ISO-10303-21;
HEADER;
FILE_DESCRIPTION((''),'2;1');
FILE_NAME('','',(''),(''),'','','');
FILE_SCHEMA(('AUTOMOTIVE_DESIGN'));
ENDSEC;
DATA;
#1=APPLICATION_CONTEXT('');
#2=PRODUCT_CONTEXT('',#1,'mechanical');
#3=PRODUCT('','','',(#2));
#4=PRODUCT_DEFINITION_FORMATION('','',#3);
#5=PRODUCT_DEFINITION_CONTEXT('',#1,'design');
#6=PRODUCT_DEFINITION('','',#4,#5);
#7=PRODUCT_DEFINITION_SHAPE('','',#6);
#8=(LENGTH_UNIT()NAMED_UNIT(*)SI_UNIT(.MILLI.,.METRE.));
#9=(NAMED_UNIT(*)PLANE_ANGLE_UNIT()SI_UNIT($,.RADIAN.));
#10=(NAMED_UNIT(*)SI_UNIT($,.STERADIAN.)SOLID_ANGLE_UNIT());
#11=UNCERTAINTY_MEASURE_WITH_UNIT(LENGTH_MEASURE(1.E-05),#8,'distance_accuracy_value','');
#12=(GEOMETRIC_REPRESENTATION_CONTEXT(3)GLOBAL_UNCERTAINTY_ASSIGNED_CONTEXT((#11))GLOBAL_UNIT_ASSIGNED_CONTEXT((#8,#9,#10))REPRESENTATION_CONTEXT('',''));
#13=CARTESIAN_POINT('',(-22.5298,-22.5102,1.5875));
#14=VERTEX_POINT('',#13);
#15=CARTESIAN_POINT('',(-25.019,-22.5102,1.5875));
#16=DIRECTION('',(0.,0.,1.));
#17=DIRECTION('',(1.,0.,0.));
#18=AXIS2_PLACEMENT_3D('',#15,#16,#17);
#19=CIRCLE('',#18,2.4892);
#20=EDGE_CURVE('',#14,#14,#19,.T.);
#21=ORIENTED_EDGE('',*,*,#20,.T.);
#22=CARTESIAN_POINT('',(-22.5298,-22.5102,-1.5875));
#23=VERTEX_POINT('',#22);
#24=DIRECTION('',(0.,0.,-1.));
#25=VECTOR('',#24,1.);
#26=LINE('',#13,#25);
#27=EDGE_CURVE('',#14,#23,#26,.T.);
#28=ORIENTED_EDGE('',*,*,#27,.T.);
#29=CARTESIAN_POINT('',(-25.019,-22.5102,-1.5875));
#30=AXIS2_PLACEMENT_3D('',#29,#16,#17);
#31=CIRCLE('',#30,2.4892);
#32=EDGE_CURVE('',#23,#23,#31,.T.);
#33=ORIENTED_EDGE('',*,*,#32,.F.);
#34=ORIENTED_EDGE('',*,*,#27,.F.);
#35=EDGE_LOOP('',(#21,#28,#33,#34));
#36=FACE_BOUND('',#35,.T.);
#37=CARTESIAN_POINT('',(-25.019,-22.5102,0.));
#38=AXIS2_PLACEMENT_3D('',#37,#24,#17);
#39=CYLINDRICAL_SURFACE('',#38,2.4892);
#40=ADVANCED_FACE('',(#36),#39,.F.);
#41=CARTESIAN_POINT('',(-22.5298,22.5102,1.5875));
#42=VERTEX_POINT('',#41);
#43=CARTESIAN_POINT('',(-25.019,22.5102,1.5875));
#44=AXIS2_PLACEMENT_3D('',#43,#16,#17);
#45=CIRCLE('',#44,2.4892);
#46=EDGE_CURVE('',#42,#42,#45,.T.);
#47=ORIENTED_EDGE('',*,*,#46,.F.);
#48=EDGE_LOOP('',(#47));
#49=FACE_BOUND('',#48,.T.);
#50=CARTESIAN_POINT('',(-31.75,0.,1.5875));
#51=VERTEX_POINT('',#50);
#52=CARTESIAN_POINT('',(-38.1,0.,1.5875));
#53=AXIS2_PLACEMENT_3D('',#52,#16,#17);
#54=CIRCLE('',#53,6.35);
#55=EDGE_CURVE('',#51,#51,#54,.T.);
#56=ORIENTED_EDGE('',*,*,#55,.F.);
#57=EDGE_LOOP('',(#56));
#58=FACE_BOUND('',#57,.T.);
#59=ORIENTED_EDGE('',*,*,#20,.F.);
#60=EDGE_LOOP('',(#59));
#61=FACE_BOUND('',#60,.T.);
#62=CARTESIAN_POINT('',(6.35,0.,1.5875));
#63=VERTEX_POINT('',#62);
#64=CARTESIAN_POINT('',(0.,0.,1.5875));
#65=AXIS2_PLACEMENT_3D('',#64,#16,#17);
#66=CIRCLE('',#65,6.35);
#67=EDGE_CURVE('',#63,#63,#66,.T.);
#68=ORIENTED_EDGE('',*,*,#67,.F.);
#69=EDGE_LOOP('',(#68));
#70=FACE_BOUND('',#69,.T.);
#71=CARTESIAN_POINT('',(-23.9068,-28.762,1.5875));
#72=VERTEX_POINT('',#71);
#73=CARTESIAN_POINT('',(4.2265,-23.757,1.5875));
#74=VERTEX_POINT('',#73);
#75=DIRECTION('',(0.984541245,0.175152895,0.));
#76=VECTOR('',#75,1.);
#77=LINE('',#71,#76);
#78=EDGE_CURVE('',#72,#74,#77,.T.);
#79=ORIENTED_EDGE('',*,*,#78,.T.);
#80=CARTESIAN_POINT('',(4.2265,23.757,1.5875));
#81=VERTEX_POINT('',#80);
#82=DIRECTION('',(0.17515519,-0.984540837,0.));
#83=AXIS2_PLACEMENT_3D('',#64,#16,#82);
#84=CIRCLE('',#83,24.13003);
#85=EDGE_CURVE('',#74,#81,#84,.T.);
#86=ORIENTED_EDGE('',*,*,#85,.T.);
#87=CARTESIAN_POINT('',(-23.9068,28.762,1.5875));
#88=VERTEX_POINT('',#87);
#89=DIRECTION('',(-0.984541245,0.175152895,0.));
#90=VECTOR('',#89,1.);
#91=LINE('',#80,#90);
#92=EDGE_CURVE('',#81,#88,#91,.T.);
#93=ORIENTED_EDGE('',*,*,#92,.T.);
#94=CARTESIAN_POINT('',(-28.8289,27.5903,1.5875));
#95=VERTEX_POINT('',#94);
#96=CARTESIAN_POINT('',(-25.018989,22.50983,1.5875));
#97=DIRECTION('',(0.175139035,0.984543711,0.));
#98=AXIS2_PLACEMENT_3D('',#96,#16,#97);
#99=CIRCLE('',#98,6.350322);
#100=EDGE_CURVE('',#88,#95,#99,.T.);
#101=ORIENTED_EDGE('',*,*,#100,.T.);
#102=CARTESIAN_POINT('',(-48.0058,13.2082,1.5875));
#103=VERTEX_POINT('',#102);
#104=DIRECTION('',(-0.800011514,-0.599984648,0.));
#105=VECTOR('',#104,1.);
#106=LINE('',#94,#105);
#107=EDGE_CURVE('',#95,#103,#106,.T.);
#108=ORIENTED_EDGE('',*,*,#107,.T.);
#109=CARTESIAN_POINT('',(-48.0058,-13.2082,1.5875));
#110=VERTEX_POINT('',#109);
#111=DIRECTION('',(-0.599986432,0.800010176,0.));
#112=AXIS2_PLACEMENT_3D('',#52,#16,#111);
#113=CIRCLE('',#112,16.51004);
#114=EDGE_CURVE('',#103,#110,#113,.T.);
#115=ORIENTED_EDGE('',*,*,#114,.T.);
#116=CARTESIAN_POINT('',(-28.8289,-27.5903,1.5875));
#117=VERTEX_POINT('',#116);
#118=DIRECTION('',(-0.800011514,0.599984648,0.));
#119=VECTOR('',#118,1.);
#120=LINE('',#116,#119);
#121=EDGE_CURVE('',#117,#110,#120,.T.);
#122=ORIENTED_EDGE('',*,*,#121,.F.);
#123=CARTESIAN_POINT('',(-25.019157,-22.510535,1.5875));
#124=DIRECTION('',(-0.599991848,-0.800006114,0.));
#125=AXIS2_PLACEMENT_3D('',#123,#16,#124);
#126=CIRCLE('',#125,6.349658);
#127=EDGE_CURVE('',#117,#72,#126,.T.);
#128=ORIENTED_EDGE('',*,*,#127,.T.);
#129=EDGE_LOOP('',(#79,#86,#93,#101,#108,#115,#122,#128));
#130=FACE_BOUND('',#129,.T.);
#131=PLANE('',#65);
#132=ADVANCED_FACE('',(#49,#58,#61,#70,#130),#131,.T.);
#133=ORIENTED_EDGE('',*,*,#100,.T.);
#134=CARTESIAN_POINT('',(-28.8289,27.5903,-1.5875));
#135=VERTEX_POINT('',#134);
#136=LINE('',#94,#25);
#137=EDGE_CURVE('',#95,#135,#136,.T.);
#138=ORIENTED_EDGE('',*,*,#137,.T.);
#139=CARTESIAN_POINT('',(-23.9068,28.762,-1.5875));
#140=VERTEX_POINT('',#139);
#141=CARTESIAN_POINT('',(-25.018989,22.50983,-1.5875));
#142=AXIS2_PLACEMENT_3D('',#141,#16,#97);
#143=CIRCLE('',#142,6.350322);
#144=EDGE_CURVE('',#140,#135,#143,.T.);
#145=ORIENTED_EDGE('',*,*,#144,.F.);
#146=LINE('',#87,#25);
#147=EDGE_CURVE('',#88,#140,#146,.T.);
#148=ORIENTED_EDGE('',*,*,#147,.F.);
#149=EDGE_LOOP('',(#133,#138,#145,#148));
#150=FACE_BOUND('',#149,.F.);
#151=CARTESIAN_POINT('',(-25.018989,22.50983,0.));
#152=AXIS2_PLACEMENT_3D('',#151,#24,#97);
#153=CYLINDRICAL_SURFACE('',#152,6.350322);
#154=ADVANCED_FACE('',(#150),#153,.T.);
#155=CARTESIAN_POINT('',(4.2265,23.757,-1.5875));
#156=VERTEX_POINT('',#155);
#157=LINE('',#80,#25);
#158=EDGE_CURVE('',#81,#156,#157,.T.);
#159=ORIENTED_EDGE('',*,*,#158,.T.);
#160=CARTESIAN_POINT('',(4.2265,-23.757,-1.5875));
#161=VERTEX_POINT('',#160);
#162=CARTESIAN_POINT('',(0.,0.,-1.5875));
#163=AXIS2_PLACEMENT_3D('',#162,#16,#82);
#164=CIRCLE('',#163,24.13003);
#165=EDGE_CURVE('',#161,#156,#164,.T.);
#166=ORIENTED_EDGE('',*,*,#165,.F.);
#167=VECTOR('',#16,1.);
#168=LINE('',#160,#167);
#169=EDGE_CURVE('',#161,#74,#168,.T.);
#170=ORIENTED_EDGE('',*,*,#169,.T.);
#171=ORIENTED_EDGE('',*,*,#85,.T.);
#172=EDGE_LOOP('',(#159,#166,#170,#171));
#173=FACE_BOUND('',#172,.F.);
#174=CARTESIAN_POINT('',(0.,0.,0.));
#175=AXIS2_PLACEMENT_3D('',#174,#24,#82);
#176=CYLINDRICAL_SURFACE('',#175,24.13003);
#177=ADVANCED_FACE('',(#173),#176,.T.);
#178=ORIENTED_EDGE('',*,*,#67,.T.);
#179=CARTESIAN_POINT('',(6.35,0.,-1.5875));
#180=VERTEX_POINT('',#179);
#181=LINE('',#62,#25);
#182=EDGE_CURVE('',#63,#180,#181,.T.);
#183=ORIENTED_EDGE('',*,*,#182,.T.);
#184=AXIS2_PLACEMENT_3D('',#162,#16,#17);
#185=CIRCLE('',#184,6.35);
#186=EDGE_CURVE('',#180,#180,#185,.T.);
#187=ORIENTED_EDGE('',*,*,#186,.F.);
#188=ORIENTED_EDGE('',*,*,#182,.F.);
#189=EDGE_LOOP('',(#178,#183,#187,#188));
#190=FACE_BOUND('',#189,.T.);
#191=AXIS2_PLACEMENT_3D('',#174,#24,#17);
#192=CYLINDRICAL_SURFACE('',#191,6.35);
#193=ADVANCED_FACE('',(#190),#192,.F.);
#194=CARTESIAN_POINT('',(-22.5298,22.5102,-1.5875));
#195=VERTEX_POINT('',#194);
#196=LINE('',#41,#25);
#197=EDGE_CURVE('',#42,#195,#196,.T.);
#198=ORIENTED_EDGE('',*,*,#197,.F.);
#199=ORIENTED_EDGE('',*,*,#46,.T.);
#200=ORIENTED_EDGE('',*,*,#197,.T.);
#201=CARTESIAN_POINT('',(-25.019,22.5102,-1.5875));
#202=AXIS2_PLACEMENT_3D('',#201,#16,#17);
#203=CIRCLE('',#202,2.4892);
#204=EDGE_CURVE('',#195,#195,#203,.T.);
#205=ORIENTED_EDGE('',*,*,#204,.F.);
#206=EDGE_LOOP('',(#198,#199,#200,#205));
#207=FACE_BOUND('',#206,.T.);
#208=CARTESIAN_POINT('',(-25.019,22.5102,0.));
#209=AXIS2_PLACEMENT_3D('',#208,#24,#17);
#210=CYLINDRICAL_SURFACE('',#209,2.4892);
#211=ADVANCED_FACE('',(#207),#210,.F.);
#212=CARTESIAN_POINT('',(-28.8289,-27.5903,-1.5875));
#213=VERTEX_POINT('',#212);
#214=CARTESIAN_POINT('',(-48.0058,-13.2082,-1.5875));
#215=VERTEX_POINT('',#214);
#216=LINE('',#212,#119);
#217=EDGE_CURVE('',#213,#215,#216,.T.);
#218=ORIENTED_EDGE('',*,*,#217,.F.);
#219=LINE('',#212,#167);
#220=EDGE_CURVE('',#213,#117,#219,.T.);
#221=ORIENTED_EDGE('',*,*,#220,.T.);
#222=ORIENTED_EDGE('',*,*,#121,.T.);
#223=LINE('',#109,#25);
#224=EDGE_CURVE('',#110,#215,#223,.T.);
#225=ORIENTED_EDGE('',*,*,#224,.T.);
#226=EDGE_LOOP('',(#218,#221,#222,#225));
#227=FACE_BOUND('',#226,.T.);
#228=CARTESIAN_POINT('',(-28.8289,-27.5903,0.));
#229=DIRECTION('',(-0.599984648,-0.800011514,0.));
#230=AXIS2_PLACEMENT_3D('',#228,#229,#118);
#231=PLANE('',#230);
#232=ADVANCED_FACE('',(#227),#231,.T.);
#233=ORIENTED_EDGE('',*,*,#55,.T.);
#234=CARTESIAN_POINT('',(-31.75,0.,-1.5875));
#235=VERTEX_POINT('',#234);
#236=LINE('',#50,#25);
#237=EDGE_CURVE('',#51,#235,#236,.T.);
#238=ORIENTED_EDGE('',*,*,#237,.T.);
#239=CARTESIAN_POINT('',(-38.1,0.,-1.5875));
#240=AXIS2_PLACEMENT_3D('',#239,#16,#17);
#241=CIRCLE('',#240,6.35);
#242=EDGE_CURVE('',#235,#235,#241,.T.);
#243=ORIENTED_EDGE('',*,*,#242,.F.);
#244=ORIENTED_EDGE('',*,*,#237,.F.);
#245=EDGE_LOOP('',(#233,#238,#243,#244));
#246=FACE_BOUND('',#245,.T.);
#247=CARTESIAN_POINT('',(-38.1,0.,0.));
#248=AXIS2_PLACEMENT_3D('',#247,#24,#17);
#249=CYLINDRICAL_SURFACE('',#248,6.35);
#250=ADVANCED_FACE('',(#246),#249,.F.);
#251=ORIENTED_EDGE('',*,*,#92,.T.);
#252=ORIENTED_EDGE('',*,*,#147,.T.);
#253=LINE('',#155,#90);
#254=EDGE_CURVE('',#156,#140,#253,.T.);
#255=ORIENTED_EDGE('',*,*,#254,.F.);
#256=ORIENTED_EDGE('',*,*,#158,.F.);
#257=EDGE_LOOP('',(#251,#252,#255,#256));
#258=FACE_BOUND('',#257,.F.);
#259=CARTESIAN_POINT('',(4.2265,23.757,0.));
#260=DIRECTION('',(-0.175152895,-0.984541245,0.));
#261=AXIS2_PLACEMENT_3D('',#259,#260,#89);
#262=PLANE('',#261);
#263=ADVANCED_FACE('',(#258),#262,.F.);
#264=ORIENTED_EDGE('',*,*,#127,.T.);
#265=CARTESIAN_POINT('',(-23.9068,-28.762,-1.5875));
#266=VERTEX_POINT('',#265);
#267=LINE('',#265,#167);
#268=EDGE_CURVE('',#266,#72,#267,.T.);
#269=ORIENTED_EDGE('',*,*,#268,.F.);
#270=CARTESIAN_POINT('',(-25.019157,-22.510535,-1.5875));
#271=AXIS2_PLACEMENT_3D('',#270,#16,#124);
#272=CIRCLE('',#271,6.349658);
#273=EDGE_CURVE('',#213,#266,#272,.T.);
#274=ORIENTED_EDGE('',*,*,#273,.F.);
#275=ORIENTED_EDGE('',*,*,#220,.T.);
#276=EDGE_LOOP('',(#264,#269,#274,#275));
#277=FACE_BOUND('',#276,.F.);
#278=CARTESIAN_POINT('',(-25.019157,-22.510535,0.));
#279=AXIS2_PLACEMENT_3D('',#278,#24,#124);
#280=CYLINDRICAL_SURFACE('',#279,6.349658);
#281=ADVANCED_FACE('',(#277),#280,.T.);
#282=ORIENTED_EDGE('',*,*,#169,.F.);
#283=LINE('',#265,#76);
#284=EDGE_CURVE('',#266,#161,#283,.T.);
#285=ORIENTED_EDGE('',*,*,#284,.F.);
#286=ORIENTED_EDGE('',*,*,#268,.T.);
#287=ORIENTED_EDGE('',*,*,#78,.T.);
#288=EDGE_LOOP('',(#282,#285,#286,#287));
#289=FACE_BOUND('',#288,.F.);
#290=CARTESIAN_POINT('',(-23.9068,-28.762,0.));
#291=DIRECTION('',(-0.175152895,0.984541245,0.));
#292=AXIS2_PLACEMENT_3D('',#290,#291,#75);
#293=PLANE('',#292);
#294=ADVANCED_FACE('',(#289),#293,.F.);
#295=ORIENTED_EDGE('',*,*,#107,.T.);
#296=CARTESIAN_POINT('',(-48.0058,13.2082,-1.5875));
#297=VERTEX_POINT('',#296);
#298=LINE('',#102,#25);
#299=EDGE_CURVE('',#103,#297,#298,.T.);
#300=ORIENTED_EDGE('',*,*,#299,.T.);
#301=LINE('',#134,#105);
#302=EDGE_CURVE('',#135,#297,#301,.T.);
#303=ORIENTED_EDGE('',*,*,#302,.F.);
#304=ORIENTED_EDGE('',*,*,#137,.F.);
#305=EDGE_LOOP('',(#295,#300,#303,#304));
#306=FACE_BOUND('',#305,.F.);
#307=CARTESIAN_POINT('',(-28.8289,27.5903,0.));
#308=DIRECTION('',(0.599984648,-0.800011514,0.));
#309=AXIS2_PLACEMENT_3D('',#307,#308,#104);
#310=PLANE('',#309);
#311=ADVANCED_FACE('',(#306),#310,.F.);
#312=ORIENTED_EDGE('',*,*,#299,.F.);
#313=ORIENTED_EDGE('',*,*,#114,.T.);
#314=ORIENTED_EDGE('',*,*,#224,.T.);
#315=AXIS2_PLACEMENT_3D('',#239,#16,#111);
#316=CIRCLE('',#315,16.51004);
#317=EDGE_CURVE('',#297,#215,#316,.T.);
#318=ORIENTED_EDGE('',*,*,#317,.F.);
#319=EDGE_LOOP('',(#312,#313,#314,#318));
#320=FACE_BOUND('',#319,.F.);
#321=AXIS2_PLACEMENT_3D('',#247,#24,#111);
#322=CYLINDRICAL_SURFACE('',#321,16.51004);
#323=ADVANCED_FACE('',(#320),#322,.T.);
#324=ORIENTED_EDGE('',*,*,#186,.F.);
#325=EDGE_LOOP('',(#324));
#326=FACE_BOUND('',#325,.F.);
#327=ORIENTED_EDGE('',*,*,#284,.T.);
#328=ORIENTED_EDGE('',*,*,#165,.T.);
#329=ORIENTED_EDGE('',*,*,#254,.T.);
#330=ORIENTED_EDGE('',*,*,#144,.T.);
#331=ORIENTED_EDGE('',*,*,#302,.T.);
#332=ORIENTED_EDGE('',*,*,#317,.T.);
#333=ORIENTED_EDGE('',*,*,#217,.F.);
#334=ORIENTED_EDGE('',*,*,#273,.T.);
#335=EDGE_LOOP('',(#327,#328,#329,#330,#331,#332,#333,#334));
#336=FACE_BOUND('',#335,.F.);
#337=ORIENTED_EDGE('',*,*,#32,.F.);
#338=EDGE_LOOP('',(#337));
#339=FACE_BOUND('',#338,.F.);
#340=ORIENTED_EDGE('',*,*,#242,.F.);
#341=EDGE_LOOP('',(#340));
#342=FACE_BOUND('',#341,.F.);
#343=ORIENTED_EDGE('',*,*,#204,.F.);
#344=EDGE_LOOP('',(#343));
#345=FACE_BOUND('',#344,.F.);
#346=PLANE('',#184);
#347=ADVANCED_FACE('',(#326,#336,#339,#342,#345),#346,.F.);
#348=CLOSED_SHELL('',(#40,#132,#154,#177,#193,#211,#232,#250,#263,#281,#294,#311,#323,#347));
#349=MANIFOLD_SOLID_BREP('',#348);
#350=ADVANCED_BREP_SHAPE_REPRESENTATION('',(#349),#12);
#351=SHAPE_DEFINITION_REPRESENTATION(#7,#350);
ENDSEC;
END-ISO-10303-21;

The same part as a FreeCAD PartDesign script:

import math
import FreeCAD as App
import Part
import Sketcher
Q = App.Units.Quantity

doc = App.newDocument("Part")
body = doc.addObject("PartDesign::Body", "Body")

# Sketch on XY plane
sketch1 = body.newObject("Sketcher::SketchObject", "Sketch")
sketch1.AttachmentSupport = (doc.getObject("XY_Plane"), [""])
sketch1.MapMode = "FlatFace"
sketch1.addGeometry([
    Part.LineSegment(App.Vector(-48.0058, -13.2082, 0), App.Vector(-28.8289, -27.5903, 0)),  # 0
    Part.ArcOfCircle(Part.Circle(App.Vector(-25.019, -22.5102, 0), App.Vector(0, 0, 1), 6.35), math.radians(-126.868634), math.radians(-79.912571)),  # 1
    Part.LineSegment(App.Vector(-23.9068, -28.762, 0), App.Vector(4.2265, -23.757, 0)),  # 2
    Part.ArcOfCircle(Part.Circle(App.Vector(0, 0, 0), App.Vector(0, 0, 1), 24.13003), math.radians(-79.912311), math.radians(79.912311)),  # 3
    Part.LineSegment(App.Vector(4.2265, 23.757, 0), App.Vector(-23.9068, 28.762, 0)),  # 4
    Part.ArcOfCircle(Part.Circle(App.Vector(-25.019, 22.5102, 0), App.Vector(0, 0, 1), 6.35), math.radians(79.912571), math.radians(126.868634)),  # 5
    Part.LineSegment(App.Vector(-28.8289, 27.5903, 0), App.Vector(-48.0058, 13.2082, 0)),  # 6
    Part.ArcOfCircle(Part.Circle(App.Vector(-38.1, 0, 0), App.Vector(0, 0, 1), 16.51004), math.radians(126.868926), math.radians(233.131074)),  # 7
    Part.Circle(App.Vector(-25.019, -22.5102, 0), App.Vector(0, 0, 1), 2.4892),  # 8
    Part.Circle(App.Vector(-38.1, 0, 0), App.Vector(0, 0, 1), 6.35),  # 9
    Part.Circle(App.Vector(-25.019, 22.5102, 0), App.Vector(0, 0, 1), 2.4892),  # 10
    Part.Circle(App.Vector(0, 0, 0), App.Vector(0, 0, 1), 6.35),  # 11
], False)
sketch1.addConstraint([
    Sketcher.Constraint("Coincident", 0, 2, 1, 1),
    Sketcher.Constraint("Coincident", 1, 2, 2, 1),
    Sketcher.Constraint("Coincident", 2, 2, 3, 1),
    Sketcher.Constraint("Coincident", 3, 2, 4, 1),
    Sketcher.Constraint("Coincident", 4, 2, 5, 1),
    Sketcher.Constraint("Coincident", 5, 2, 6, 1),
    Sketcher.Constraint("Coincident", 6, 2, 7, 1),
    Sketcher.Constraint("Coincident", 7, 2, 0, 1),
    Sketcher.Constraint("Coincident", 3, 3, -1, 1),
    Sketcher.Constraint("Coincident", 11, 3, -1, 1),
    Sketcher.Constraint("Coincident", 8, 3, 1, 3),
    Sketcher.Constraint("Coincident", 9, 3, 7, 3),
    Sketcher.Constraint("Coincident", 10, 3, 5, 3),
    Sketcher.Constraint("PointOnObject", 7, 3, -1),
    Sketcher.Constraint("Diameter", 9, Q("0.5 in")),
    Sketcher.Constraint("Diameter", 11, Q("0.5 in")),
    Sketcher.Constraint("Radius", 1, Q("0.25 in")),
    Sketcher.Constraint("Radius", 3, Q("0.95 in")),
    Sketcher.Constraint("Radius", 5, Q("0.25 in")),
    Sketcher.Constraint("Radius", 7, Q("0.65 in")),
    Sketcher.Constraint("Diameter", 8, Q("0.196 in")),
    Sketcher.Constraint("Diameter", 10, Q("0.196 in")),
    Sketcher.Constraint("DistanceX", 7, 3, -1, 1, Q("1.5 in")),
    Sketcher.Constraint("DistanceY", 0, 2, 1, 3, Q("0.2 in")),
    Sketcher.Constraint("DistanceY", 5, 3, 5, 2, Q("0.2 in")),
    Sketcher.Constraint("DistanceX", 6, 2, -1, 1, Q("1.89 in")),
    Sketcher.Constraint("DistanceX", 7, 2, -1, 1, Q("1.89 in")),
    Sketcher.Constraint("Distance", 2, Q("1.125 in")),
    Sketcher.Constraint("Distance", 4, Q("1.125 in")),
    Sketcher.Constraint("DistanceX", 1, 3, -1, 1, Q("0.985 in")),
    Sketcher.Constraint("DistanceX", 5, 3, -1, 1, Q("0.985 in")),
    Sketcher.Constraint("DistanceX", -1, 1, 2, 2, Q("0.1664 in")),
    Sketcher.Constraint("DistanceX", -1, 1, 3, 2, Q("0.1664 in")),
    Sketcher.Constraint("DistanceX", 1, 2, 2, 2, Q("1.1076 in")),
    Sketcher.Constraint("DistanceX", 4, 2, 3, 2, Q("1.1076 in")),
])
pad1 = body.newObject("PartDesign::Pad", "Pad")
pad1.Profile = sketch1
pad1.Length = Q("0.125 in")
pad1.Midplane = True

doc.recompute()
